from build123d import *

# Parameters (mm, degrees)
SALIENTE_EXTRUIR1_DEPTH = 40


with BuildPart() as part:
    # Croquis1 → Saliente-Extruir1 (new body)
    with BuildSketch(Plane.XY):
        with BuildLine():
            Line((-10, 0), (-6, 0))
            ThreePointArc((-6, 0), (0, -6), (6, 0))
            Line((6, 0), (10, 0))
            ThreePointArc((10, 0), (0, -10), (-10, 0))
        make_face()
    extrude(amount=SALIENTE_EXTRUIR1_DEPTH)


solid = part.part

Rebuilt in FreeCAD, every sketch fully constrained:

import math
import FreeCAD as App
import Part
import Sketcher

V = App.Vector

doc = App.newDocument("Part")
body = doc.addObject("PartDesign::Body", "Body")

# Sketch on XY plane
sketch1 = body.newObject("Sketcher::SketchObject", "Sketch")
sketch1.AttachmentSupport = (doc.getObject("XY_Plane"), [""])
sketch1.MapMode = "FlatFace"
sketch1.addGeometry([
    Part.LineSegment(V(-6, 0, 0), V(-10, 0, 0)),
    Part.ArcOfCircle(Part.Circle(V(0, 0, 0), V(0, 0, 1), 10), math.radians(180), math.radians(360)),
    Part.LineSegment(V(10, 0, 0), V(6, 0, 0)),
    Part.ArcOfCircle(Part.Circle(V(0, 0, 0), V(0, 0, 1), 6), math.radians(180), math.radians(360)),
], False)
sketch1.addConstraint([
    Sketcher.Constraint("Coincident", 0, 2, 1, 1),
    Sketcher.Constraint("Coincident", 1, 2, 2, 1),
    Sketcher.Constraint("Coincident", 2, 2, 3, 2),
    Sketcher.Constraint("Coincident", 3, 1, 0, 1),
    Sketcher.Constraint("Horizontal", 0),
    Sketcher.Constraint("Horizontal", 2),
    Sketcher.Constraint("Coincident", 1, 3, -1, 1),
    Sketcher.Constraint("Coincident", 3, 3, -1, 1),
    Sketcher.Constraint("PointOnObject", 0, 2, -1),
    Sketcher.Constraint("PointOnObject", 1, 2, -1),
    Sketcher.Constraint("Radius", 1, 10.0),
    Sketcher.Constraint("Radius", 3, 6.0),
])
pad1 = body.newObject("PartDesign::Pad", "Pad")
pad1.Profile = sketch1
pad1.Length = 40

doc.recompute()
